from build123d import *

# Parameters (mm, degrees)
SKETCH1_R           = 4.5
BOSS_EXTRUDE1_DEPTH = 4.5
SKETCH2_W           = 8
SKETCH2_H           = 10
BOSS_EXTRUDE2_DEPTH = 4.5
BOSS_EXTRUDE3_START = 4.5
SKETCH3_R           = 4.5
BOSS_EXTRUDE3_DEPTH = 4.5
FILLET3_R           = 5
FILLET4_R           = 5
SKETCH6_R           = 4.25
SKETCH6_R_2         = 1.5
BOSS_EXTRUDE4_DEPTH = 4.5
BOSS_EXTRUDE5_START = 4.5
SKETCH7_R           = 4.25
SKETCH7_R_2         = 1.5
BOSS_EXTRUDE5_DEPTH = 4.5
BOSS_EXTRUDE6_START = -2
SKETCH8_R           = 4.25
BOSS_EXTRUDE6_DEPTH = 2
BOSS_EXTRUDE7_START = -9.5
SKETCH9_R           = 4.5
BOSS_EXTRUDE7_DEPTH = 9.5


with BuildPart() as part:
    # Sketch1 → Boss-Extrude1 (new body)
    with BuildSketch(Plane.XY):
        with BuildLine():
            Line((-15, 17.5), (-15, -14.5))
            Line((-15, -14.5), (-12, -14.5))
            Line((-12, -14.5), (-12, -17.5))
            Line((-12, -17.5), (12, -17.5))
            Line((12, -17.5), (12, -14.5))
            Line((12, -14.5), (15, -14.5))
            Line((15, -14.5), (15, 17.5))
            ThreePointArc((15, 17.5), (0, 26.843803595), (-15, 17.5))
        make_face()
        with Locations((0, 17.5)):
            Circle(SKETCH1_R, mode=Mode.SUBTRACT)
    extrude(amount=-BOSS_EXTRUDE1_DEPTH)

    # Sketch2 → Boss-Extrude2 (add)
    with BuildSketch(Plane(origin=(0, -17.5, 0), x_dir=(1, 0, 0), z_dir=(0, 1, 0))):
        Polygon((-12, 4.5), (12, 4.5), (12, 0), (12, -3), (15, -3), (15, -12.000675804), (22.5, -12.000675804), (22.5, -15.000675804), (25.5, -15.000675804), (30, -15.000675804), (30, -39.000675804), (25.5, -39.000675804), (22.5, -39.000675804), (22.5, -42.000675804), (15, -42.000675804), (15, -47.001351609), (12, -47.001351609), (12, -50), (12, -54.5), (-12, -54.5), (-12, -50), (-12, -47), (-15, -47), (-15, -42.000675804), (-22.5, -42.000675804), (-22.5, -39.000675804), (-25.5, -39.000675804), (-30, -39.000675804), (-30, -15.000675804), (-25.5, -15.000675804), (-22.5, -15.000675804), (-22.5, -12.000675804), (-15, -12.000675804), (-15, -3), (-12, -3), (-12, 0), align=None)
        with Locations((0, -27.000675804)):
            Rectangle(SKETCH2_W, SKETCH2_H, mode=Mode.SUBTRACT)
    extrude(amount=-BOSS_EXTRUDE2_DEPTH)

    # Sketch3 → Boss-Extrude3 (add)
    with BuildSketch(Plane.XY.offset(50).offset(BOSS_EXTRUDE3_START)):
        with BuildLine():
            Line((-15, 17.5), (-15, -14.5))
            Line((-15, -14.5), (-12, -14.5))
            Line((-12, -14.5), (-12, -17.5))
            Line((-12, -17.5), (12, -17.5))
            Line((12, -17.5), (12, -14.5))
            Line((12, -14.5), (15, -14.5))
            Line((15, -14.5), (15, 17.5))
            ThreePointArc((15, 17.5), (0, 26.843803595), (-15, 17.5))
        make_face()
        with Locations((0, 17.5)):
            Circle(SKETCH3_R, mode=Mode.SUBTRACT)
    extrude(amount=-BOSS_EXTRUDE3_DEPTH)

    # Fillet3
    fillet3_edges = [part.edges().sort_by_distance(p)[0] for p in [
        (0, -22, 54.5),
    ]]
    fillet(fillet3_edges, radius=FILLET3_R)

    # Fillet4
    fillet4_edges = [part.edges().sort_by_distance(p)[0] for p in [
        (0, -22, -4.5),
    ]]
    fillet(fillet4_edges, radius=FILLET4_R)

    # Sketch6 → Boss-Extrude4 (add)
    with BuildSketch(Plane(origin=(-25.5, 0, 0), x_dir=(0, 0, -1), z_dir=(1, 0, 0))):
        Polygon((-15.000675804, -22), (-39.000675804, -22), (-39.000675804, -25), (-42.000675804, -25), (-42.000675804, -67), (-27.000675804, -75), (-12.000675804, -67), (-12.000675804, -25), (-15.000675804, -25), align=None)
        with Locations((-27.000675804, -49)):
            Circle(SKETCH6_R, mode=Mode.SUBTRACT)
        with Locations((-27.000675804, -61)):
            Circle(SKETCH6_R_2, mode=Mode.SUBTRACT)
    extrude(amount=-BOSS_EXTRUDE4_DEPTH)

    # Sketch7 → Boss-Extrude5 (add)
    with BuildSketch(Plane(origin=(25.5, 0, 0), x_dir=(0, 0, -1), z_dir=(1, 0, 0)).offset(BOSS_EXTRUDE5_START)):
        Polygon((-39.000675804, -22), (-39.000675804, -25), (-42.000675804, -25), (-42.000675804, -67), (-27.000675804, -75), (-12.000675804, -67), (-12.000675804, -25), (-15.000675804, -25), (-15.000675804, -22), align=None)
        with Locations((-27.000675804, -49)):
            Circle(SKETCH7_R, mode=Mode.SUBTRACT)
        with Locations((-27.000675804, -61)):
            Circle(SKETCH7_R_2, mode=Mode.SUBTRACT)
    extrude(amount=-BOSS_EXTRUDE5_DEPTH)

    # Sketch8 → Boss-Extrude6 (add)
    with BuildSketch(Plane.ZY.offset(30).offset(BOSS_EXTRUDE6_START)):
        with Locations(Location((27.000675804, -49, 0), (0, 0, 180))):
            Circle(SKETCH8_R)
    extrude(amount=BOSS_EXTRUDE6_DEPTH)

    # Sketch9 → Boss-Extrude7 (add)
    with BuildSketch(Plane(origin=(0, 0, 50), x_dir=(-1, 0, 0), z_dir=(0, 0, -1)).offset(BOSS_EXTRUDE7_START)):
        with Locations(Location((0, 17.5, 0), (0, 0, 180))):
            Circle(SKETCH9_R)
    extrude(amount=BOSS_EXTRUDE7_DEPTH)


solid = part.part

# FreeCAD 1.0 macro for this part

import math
import FreeCAD as App
import Part
import Sketcher


def edges_at(feature, points):
    """Names of the edges that pass closest to the given points."""
    edges = feature.Shape.Edges
    near = lambda p: min(range(len(edges)), key=lambda i: edges[i].distToShape(Part.Vertex(*p))[0])
    return sorted({f"Edge{near(p) + 1}" for p in points})

doc = App.newDocument("Part")
body = doc.addObject("PartDesign::Body", "Body")

# Sketch on XY plane
sketch1 = body.newObject("Sketcher::SketchObject", "Sketch")
sketch1.AttachmentSupport = (doc.getObject("XY_Plane"), [""])
sketch1.MapMode = "FlatFace"
sketch1.addGeometry([
    Part.LineSegment(App.Vector(-15, 17.5, 0), App.Vector(-15, -14.5, 0)),  # 0
    Part.LineSegment(App.Vector(-15, -14.5, 0), App.Vector(-12, -14.5, 0)),  # 1
    Part.LineSegment(App.Vector(-12, -14.5, 0), App.Vector(-12, -17.5, 0)),  # 2
    Part.LineSegment(App.Vector(-12, -17.5, 0), App.Vector(12, -17.5, 0)),  # 3
    Part.LineSegment(App.Vector(12, -17.5, 0), App.Vector(12, -14.5, 0)),  # 4
    Part.LineSegment(App.Vector(12, -14.5, 0), App.Vector(15, -14.5, 0)),  # 5
    Part.LineSegment(App.Vector(15, -14.5, 0), App.Vector(15, 17.5, 0)),  # 6
    Part.ArcOfCircle(Part.Circle(App.Vector(0, 10.131837, 0), App.Vector(0, 0, 1), 16.711967), math.radians(26.160772), math.radians(153.839228)),  # 7
    Part.Circle(App.Vector(0, 17.5, 0), App.Vector(0, 0, 1), 4.5),  # 8
], False)
sketch1.addConstraint([
    Sketcher.Constraint("Coincident", 0, 2, 1, 1),
    Sketcher.Constraint("Coincident", 1, 2, 2, 1),
    Sketcher.Constraint("Coincident", 2, 2, 3, 1),
    Sketcher.Constraint("Coincident", 3, 2, 4, 1),
    Sketcher.Constraint("Coincident", 4, 2, 5, 1),
    Sketcher.Constraint("Coincident", 5, 2, 6, 1),
    Sketcher.Constraint("Coincident", 6, 2, 7, 1),
    Sketcher.Constraint("Coincident", 7, 2, 0, 1),
    Sketcher.Constraint("Vertical", 0),
    Sketcher.Constraint("Horizontal", 1),
    Sketcher.Constraint("Vertical", 2),
    Sketcher.Constraint("Horizontal", 3),
    Sketcher.Constraint("Vertical", 4),
    Sketcher.Constraint("Horizontal", 5),
    Sketcher.Constraint("Vertical", 6),
    Sketcher.Constraint("Symmetric", 1, 2, 4, 2, -2),
    Sketcher.Constraint("Symmetric", 6, 2, 7, 2, -2),
    Sketcher.Constraint("PointOnObject", 8, 3, -2),
    Sketcher.Constraint("Horizontal", 8, 3, 6, 2),
    Sketcher.Constraint("Equal", 5, 2),
    Sketcher.Constraint("Diameter", 8, 9.0),
    Sketcher.Constraint("DistanceX", 1, 1, 1, 2, 3.0),
    Sketcher.Constraint("DistanceX", 3, 1, 3, 2, 24.0),
    Sketcher.Constraint("DistanceY", 0, 2, 0, 1, 32.0),
    Sketcher.Constraint("DistanceY", -1, 1, 8, 3, 17.5),
    Sketcher.Constraint("Radius", 7, 16.711967),
])
pad1 = body.newObject("PartDesign::Pad", "Pad")
pad1.Profile = sketch1
pad1.Length = 4.5
pad1.Reversed = True

# Sketch on XZ plane
sketch2 = body.newObject("Sketcher::SketchObject", "Sketch001")
sketch2.AttachmentSupport = (doc.getObject("XZ_Plane"), [""])
sketch2.MapMode = "FlatFace"
sketch2.AttachmentOffset = App.Placement(App.Vector(0, 0, 17.5), App.Rotation())
sketch2.addGeometry([
    Part.LineSegment(App.Vector(12, -4.5, 0), App.Vector(-12, -4.5, 0)),  # 0
    Part.LineSegment(App.Vector(-12, -4.5, 0), App.Vector(-12, 3, 0)),  # 1
    Part.LineSegment(App.Vector(-12, 3, 0), App.Vector(-15, 3, 0)),  # 2
    Part.LineSegment(App.Vector(-15, 3, 0), App.Vector(-15, 12.000676, 0)),  # 3
    Part.LineSegment(App.Vector(-15, 12.000676, 0), App.Vector(-22.5, 12.000676, 0)),  # 4
    Part.LineSegment(App.Vector(-22.5, 12.000676, 0), App.Vector(-22.5, 15.000676, 0)),  # 5
    Part.LineSegment(App.Vector(-22.5, 15.000676, 0), App.Vector(-30, 15.000676, 0)),  # 6
    Part.LineSegment(App.Vector(-30, 15.000676, 0), App.Vector(-30, 39.000676, 0)),  # 7
    Part.LineSegment(App.Vector(-30, 39.000676, 0), App.Vector(-22.5, 39.000676, 0)),  # 8
    Part.LineSegment(App.Vector(-22.5, 39.000676, 0), App.Vector(-22.5, 42.000676, 0)),  # 9
    Part.LineSegment(App.Vector(-22.5, 42.000676, 0), App.Vector(-15, 42.000676, 0)),  # 10
    Part.LineSegment(App.Vector(-15, 42.000676, 0), App.Vector(-15, 47, 0)),  # 11
    Part.LineSegment(App.Vector(-15, 47, 0), App.Vector(-12, 47, 0)),  # 12
    Part.LineSegment(App.Vector(-12, 47, 0), App.Vector(-12, 54.5, 0)),  # 13
    Part.LineSegment(App.Vector(-12, 54.5, 0), App.Vector(12, 54.5, 0)),  # 14
    Part.LineSegment(App.Vector(12, 54.5, 0), App.Vector(12, 47.001352, 0)),  # 15
    Part.LineSegment(App.Vector(12, 47.001352, 0), App.Vector(15, 47.001352, 0)),  # 16
    Part.LineSegment(App.Vector(15, 47.001352, 0), App.Vector(15, 42.000676, 0)),  # 17
    Part.LineSegment(App.Vector(15, 42.000676, 0), App.Vector(22.5, 42.000676, 0)),  # 18
    Part.LineSegment(App.Vector(22.5, 42.000676, 0), App.Vector(22.5, 39.000676, 0)),  # 19
    Part.LineSegment(App.Vector(22.5, 39.000676, 0), App.Vector(30, 39.000676, 0)),  # 20
    Part.LineSegment(App.Vector(30, 39.000676, 0), App.Vector(30, 15.000676, 0)),  # 21
    Part.LineSegment(App.Vector(30, 15.000676, 0), App.Vector(22.5, 15.000676, 0)),  # 22
    Part.LineSegment(App.Vector(22.5, 15.000676, 0), App.Vector(22.5, 12.000676, 0)),  # 23
    Part.LineSegment(App.Vector(22.5, 12.000676, 0), App.Vector(15, 12.000676, 0)),  # 24
    Part.LineSegment(App.Vector(15, 12.000676, 0), App.Vector(15, 3, 0)),  # 25
    Part.LineSegment(App.Vector(15, 3, 0), App.Vector(12, 3, 0)),  # 26
    Part.LineSegment(App.Vector(12, 3, 0), App.Vector(12, -4.5, 0)),  # 27
    Part.LineSegment(App.Vector(-4, 32.000676, 0), App.Vector(-4, 22.000676, 0)),  # 28
    Part.LineSegment(App.Vector(-4, 22.000676, 0), App.Vector(4, 22.000676, 0)),  # 29
    Part.LineSegment(App.Vector(4, 22.000676, 0), App.Vector(4, 32.000676, 0)),  # 30
    Part.LineSegment(App.Vector(4, 32.000676, 0), App.Vector(-4, 32.000676, 0)),  # 31
], False)
sketch2.addConstraint([
    Sketcher.Constraint("Coincident", 0, 2, 1, 1),
    Sketcher.Constraint("Coincident", 1, 2, 2, 1),
    Sketcher.Constraint("Coincident", 2, 2, 3, 1),
    Sketcher.Constraint("Coincident", 3, 2, 4, 1),
    Sketcher.Constraint("Coincident", 4, 2, 5, 1),
    Sketcher.Constraint("Coincident", 5, 2, 6, 1),
    Sketcher.Constraint("Coincident", 6, 2, 7, 1),
    Sketcher.Constraint("Coincident", 7, 2, 8, 1),
    Sketcher.Constraint("Coincident", 8, 2, 9, 1),
    Sketcher.Constraint("Coincident", 9, 2, 10, 1),
    Sketcher.Constraint("Coincident", 10, 2, 11, 1),
    Sketcher.Constraint("Coincident", 11, 2, 12, 1),
    Sketcher.Constraint("Coincident", 12, 2, 13, 1),
    Sketcher.Constraint("Coincident", 13, 2, 14, 1),
    Sketcher.Constraint("Coincident", 14, 2, 15, 1),
    Sketcher.Constraint("Coincident", 15, 2, 16, 1),
    Sketcher.Constraint("Coincident", 16, 2, 17, 1),
    Sketcher.Constraint("Coincident", 17, 2, 18, 1),
    Sketcher.Constraint("Coincident", 18, 2, 19, 1),
    Sketcher.Constraint("Coincident", 19, 2, 20, 1),
    Sketcher.Constraint("Coincident", 20, 2, 21, 1),
    Sketcher.Constraint("Coincident", 21, 2, 22, 1),
    Sketcher.Constraint("Coincident", 22, 2, 23, 1),
    Sketcher.Constraint("Coincident", 23, 2, 24, 1),
    Sketcher.Constraint("Coincident", 24, 2, 25, 1),
    Sketcher.Constraint("Coincident", 25, 2, 26, 1),
    Sketcher.Constraint("Coincident", 26, 2, 27, 1),
    Sketcher.Constraint("Coincident", 27, 2, 0, 1),
    Sketcher.Constraint("Coincident", 28, 2, 29, 1),
    Sketcher.Constraint("Coincident", 29, 2, 30, 1),
    Sketcher.Constraint("Coincident", 30, 2, 31, 1),
    Sketcher.Constraint("Coincident", 31, 2, 28, 1),
    Sketcher.Constraint("Horizontal", 0),
    Sketcher.Constraint("Vertical", 1),
    Sketcher.Constraint("Horizontal", 2),
    Sketcher.Constraint("Vertical", 3),
    Sketcher.Constraint("Horizontal", 4),
    Sketcher.Constraint("Vertical", 5),
    Sketcher.Constraint("Horizontal", 6),
    Sketcher.Constraint("Vertical", 7),
    Sketcher.Constraint("Horizontal", 8),
    Sketcher.Constraint("Vertical", 9),
    Sketcher.Constraint("Horizontal", 10),
    Sketcher.Constraint("Vertical", 11),
    Sketcher.Constraint("Horizontal", 12),
    Sketcher.Constraint("Vertical", 13),
    Sketcher.Constraint("Horizontal", 14),
    Sketcher.Constraint("Vertical", 15),
    Sketcher.Constraint("Horizontal", 16),
    Sketcher.Constraint("Vertical", 17),
    Sketcher.Constraint("Horizontal", 18),
    Sketcher.Constraint("Vertical", 19),
    Sketcher.Constraint("Horizontal", 20),
    Sketcher.Constraint("Vertical", 21),
    Sketcher.Constraint("Horizontal", 22),
    Sketcher.Constraint("Vertical", 23),
    Sketcher.Constraint("Horizontal", 24),
    Sketcher.Constraint("Vertical", 25),
    Sketcher.Constraint("Horizontal", 26),
    Sketcher.Constraint("Vertical", 27),
    Sketcher.Constraint("Vertical", 28),
    Sketcher.Constraint("Horizontal", 29),
    Sketcher.Constraint("Vertical", 30),
    Sketcher.Constraint("Horizontal", 31),
    Sketcher.Constraint("Symmetric", 10, 2, 17, 2, -2),
    Sketcher.Constraint("Symmetric", 8, 2, 19, 2, -2),
    Sketcher.Constraint("Symmetric", 6, 2, 21, 2, -2),
    Sketcher.Constraint("Symmetric", 4, 2, 23, 2, -2),
    Sketcher.Constraint("Symmetric", 2, 2, 25, 2, -2),
    Sketcher.Constraint("Vertical", 5, 2, 8, 2),
    Sketcher.Constraint("Vertical", 3, 2, 10, 2),
    Sketcher.Constraint("Vertical", 1, 2, 12, 2),
    Sketcher.Constraint("Vertical", 15, 2, 26, 2),
    Sketcher.Constraint("Equal", 4, 6),
    Sketcher.Constraint("Equal", 12, 16),
    Sketcher.Constraint("Equal", 24, 1),
    Sketcher.Constraint("Equal", 26, 5),
    Sketcher.Constraint("Equal", 14, 7),
    Sketcher.Constraint("Equal", 5, 9),
    Sketcher.Constraint("Equal", 1, 13),
    Sketcher.Constraint("DistanceX", 0, 2, 0, 1, 24.0),
    Sketcher.Constraint("DistanceX", 2, 2, 2, 1, 3.0),
    Sketcher.Constraint("DistanceX", 29, 1, 29, 2, 8.0),
    Sketcher.Constraint("DistanceY", 28, 2, 28, 1, 10.0),
    Sketcher.Constraint("DistanceX", 4, 2, 4, 1, 7.5),
    Sketcher.Constraint("DistanceY", -1, 1, 1, 2, 3.0),
    Sketcher.Constraint("DistanceY", -1, 1, 11, 2, 47.0),
    Sketcher.Constraint("DistanceX", 28, 2, -1, 1, 4.0),
    Sketcher.Constraint("DistanceY", 3, 2, 28, 2, 10.0),
    Sketcher.Constraint("DistanceY", 15, 2, 15, 1, 7.498648),
    Sketcher.Constraint("DistanceY", 3, 1, 3, 2, 9.000676),
])
pad2 = body.newObject("PartDesign::Pad", "Pad001")
pad2.Profile = sketch2
pad2.Length = 4.5

# Sketch on XY plane
sketch3 = body.newObject("Sketcher::SketchObject", "Sketch002")
sketch3.AttachmentSupport = (doc.getObject("XY_Plane"), [""])
sketch3.MapMode = "FlatFace"
sketch3.AttachmentOffset = App.Placement(App.Vector(0, 0, 54.5), App.Rotation())
sketch3.addGeometry([
    Part.LineSegment(App.Vector(-15, 17.5, 0), App.Vector(-15, -14.5, 0)),  # 0
    Part.LineSegment(App.Vector(-15, -14.5, 0), App.Vector(-12, -14.5, 0)),  # 1
    Part.LineSegment(App.Vector(-12, -14.5, 0), App.Vector(-12, -17.5, 0)),  # 2
    Part.LineSegment(App.Vector(-12, -17.5, 0), App.Vector(12, -17.5, 0)),  # 3
    Part.LineSegment(App.Vector(12, -17.5, 0), App.Vector(12, -14.5, 0)),  # 4
    Part.LineSegment(App.Vector(12, -14.5, 0), App.Vector(15, -14.5, 0)),  # 5
    Part.LineSegment(App.Vector(15, -14.5, 0), App.Vector(15, 17.5, 0)),  # 6
    Part.ArcOfCircle(Part.Circle(App.Vector(0, 10.131837, 0), App.Vector(0, 0, 1), 16.711967), math.radians(26.160772), math.radians(153.839228)),  # 7
    Part.Circle(App.Vector(0, 17.5, 0), App.Vector(0, 0, 1), 4.5),  # 8
], False)
sketch3.addConstraint([
    Sketcher.Constraint("Coincident", 0, 2, 1, 1),
    Sketcher.Constraint("Coincident", 1, 2, 2, 1),
    Sketcher.Constraint("Coincident", 2, 2, 3, 1),
    Sketcher.Constraint("Coincident", 3, 2, 4, 1),
    Sketcher.Constraint("Coincident", 4, 2, 5, 1),
    Sketcher.Constraint("Coincident", 5, 2, 6, 1),
    Sketcher.Constraint("Coincident", 6, 2, 7, 1),
    Sketcher.Constraint("Coincident", 7, 2, 0, 1),
    Sketcher.Constraint("Vertical", 0),
    Sketcher.Constraint("Horizontal", 1),
    Sketcher.Constraint("Vertical", 2),
    Sketcher.Constraint("Horizontal", 3),
    Sketcher.Constraint("Vertical", 4),
    Sketcher.Constraint("Horizontal", 5),
    Sketcher.Constraint("Vertical", 6),
    Sketcher.Constraint("Symmetric", 1, 2, 4, 2, -2),
    Sketcher.Constraint("Symmetric", 6, 2, 7, 2, -2),
    Sketcher.Constraint("PointOnObject", 8, 3, -2),
    Sketcher.Constraint("Horizontal", 8, 3, 6, 2),
    Sketcher.Constraint("Equal", 5, 2),
    Sketcher.Constraint("Diameter", 8, 9.0),
    Sketcher.Constraint("DistanceX", 1, 1, 1, 2, 3.0),
    Sketcher.Constraint("DistanceX", 3, 1, 3, 2, 24.0),
    Sketcher.Constraint("DistanceY", 0, 2, 0, 1, 32.0),
    Sketcher.Constraint("DistanceY", -1, 1, 8, 3, 17.5),
    Sketcher.Constraint("Radius", 7, 16.711967),
])
pad3 = body.newObject("PartDesign::Pad", "Pad002")
pad3.Profile = sketch3
pad3.Length = 4.5
pad3.Reversed = True
doc.recompute()

fillet = body.newObject("PartDesign::Fillet", "Fillet")
fillet.Base = (pad3, edges_at(pad3, [(0, -22, 54.5)]))
fillet.Radius = 5
doc.recompute()

fillet2 = body.newObject("PartDesign::Fillet", "Fillet001")
fillet2.Base = (fillet, edges_at(fillet, [(0, -22, -4.5)]))
fillet2.Radius = 5

# Sketch on YZ plane
sketch4 = body.newObject("Sketcher::SketchObject", "Sketch003")
sketch4.AttachmentSupport = (doc.getObject("YZ_Plane"), [""])
sketch4.MapMode = "FlatFace"
sketch4.AttachmentOffset = App.Placement(App.Vector(0, 0, -25.5), App.Rotation())
sketch4.addGeometry([
    Part.LineSegment(App.Vector(-22, 15.000676, 0), App.Vector(-22, 39.000676, 0)),  # 0
    Part.LineSegment(App.Vector(-22, 39.000676, 0), App.Vector(-25, 39.000676, 0)),  # 1
    Part.LineSegment(App.Vector(-25, 39.000676, 0), App.Vector(-25, 42.000676, 0)),  # 2
    Part.LineSegment(App.Vector(-25, 42.000676, 0), App.Vector(-67, 42.000676, 0)),  # 3
    Part.LineSegment(App.Vector(-67, 42.000676, 0), App.Vector(-75, 27.000676, 0)),  # 4
    Part.LineSegment(App.Vector(-75, 27.000676, 0), App.Vector(-67, 12.000676, 0)),  # 5
    Part.LineSegment(App.Vector(-67, 12.000676, 0), App.Vector(-25, 12.000676, 0)),  # 6
    Part.LineSegment(App.Vector(-25, 12.000676, 0), App.Vector(-25, 15.000676, 0)),  # 7
    Part.LineSegment(App.Vector(-25, 15.000676, 0), App.Vector(-22, 15.000676, 0)),  # 8
    Part.Circle(App.Vector(-61, 27.000676, 0), App.Vector(0, 0, 1), 1.5),  # 9
    Part.Circle(App.Vector(-49, 27.000676, 0), App.Vector(0, 0, 1), 4.25),  # 10
], False)
sketch4.addConstraint([
    Sketcher.Constraint("Coincident", 0, 2, 1, 1),
    Sketcher.Constraint("Coincident", 1, 2, 2, 1),
    Sketcher.Constraint("Coincident", 2, 2, 3, 1),
    Sketcher.Constraint("Coincident", 3, 2, 4, 1),
    Sketcher.Constraint("Coincident", 4, 2, 5, 1),
    Sketcher.Constraint("Coincident", 5, 2, 6, 1),
    Sketcher.Constraint("Coincident", 6, 2, 7, 1),
    Sketcher.Constraint("Coincident", 7, 2, 8, 1),
    Sketcher.Constraint("Coincident", 8, 2, 0, 1),
    Sketcher.Constraint("Vertical", 0),
    Sketcher.Constraint("Horizontal", 1),
    Sketcher.Constraint("Vertical", 2),
    Sketcher.Constraint("Horizontal", 3),
    Sketcher.Constraint("Horizontal", 6),
    Sketcher.Constraint("Vertical", 7),
    Sketcher.Constraint("Horizontal", 8),
    Sketcher.Constraint("Horizontal", 9, 3, 10, 3),
    Sketcher.Constraint("Horizontal", 10, 3, 4, 2),
    Sketcher.Constraint("Vertical", 3, 2, 5, 2),
    Sketcher.Constraint("Vertical", 2, 2, 6, 2),
    Sketcher.Constraint("Equal", 8, 2),
    Sketcher.Constraint("Equal", 2, 7),
    Sketcher.Constraint("Equal", 4, 5),
    Sketcher.Constraint("Diameter", 9, 3.0),
    Sketcher.Constraint("Diameter", 10, 8.5),
    Sketcher.Constraint("DistanceX", 1, 2, 1, 1, 3.0),
    Sketcher.Constraint("DistanceX", 3, 2, 3, 1, 42.0),
    Sketcher.Constraint("DistanceY", 0, 1, 0, 2, 24.0),
    Sketcher.Constraint("Distance", 4, 17.0),
    Sketcher.Constraint("DistanceX", 9, 3, -1, 1, 61.0),
    Sketcher.Constraint("DistanceX", 10, 3, -1, 1, 49.0),
    Sketcher.Constraint("DistanceX", 0, 2, -1, 1, 22.0),
    Sketcher.Constraint("DistanceY", -1, 1, 9, 3, 27.000676),
])
pad4 = body.newObject("PartDesign::Pad", "Pad003")
pad4.Profile = sketch4
pad4.Length = 4.5
pad4.Reversed = True

# Sketch on YZ plane
sketch5 = body.newObject("Sketcher::SketchObject", "Sketch004")
sketch5.AttachmentSupport = (doc.getObject("YZ_Plane"), [""])
sketch5.MapMode = "FlatFace"
sketch5.AttachmentOffset = App.Placement(App.Vector(0, 0, 30), App.Rotation())
sketch5.addGeometry([
    Part.LineSegment(App.Vector(-22, 39.000676, 0), App.Vector(-25, 39.000676, 0)),  # 0
    Part.LineSegment(App.Vector(-25, 39.000676, 0), App.Vector(-25, 42.000676, 0)),  # 1
    Part.LineSegment(App.Vector(-25, 42.000676, 0), App.Vector(-67, 42.000676, 0)),  # 2
    Part.LineSegment(App.Vector(-67, 42.000676, 0), App.Vector(-75, 27.000676, 0)),  # 3
    Part.LineSegment(App.Vector(-75, 27.000676, 0), App.Vector(-67, 12.000676, 0)),  # 4
    Part.LineSegment(App.Vector(-67, 12.000676, 0), App.Vector(-25, 12.000676, 0)),  # 5
    Part.LineSegment(App.Vector(-25, 12.000676, 0), App.Vector(-25, 15.000676, 0)),  # 6
    Part.LineSegment(App.Vector(-25, 15.000676, 0), App.Vector(-22, 15.000676, 0)),  # 7
    Part.LineSegment(App.Vector(-22, 15.000676, 0), App.Vector(-22, 39.000676, 0)),  # 8
    Part.Circle(App.Vector(-61, 27.000676, 0), App.Vector(0, 0, 1), 1.5),  # 9
    Part.Circle(App.Vector(-49, 27.000676, 0), App.Vector(0, 0, 1), 4.25),  # 10
], False)
sketch5.addConstraint([
    Sketcher.Constraint("Coincident", 0, 2, 1, 1),
    Sketcher.Constraint("Coincident", 1, 2, 2, 1),
    Sketcher.Constraint("Coincident", 2, 2, 3, 1),
    Sketcher.Constraint("Coincident", 3, 2, 4, 1),
    Sketcher.Constraint("Coincident", 4, 2, 5, 1),
    Sketcher.Constraint("Coincident", 5, 2, 6, 1),
    Sketcher.Constraint("Coincident", 6, 2, 7, 1),
    Sketcher.Constraint("Coincident", 7, 2, 8, 1),
    Sketcher.Constraint("Coincident", 8, 2, 0, 1),
    Sketcher.Constraint("Horizontal", 0),
    Sketcher.Constraint("Vertical", 1),
    Sketcher.Constraint("Horizontal", 2),
    Sketcher.Constraint("Horizontal", 5),
    Sketcher.Constraint("Vertical", 6),
    Sketcher.Constraint("Horizontal", 7),
    Sketcher.Constraint("Vertical", 8),
    Sketcher.Constraint("Horizontal", 9, 3, 10, 3),
    Sketcher.Constraint("Horizontal", 10, 3, 3, 2),
    Sketcher.Constraint("Vertical", 2, 2, 4, 2),
    Sketcher.Constraint("Vertical", 1, 2, 5, 2),
    Sketcher.Constraint("Equal", 7, 1),
    Sketcher.Constraint("Equal", 1, 6),
    Sketcher.Constraint("Equal", 3, 4),
    Sketcher.Constraint("Diameter", 9, 3.0),
    Sketcher.Constraint("Diameter", 10, 8.5),
    Sketcher.Constraint("DistanceX", 0, 2, 0, 1, 3.0),
    Sketcher.Constraint("DistanceX", 2, 2, 2, 1, 42.0),
    Sketcher.Constraint("DistanceY", 8, 1, 8, 2, 24.0),
    Sketcher.Constraint("Distance", 3, 17.0),
    Sketcher.Constraint("DistanceX", 9, 3, -1, 1, 61.0),
    Sketcher.Constraint("DistanceX", 10, 3, -1, 1, 49.0),
    Sketcher.Constraint("DistanceX", 0, 2, -1, 1, 25.0),
    Sketcher.Constraint("DistanceY", -1, 1, 9, 3, 27.000676),
])
pad5 = body.newObject("PartDesign::Pad", "Pad004")
pad5.Profile = sketch5
pad5.Length = 4.5
pad5.Reversed = True

# Sketch on YZ plane
sketch6 = body.newObject("Sketcher::SketchObject", "Sketch005")
sketch6.AttachmentSupport = (doc.getObject("YZ_Plane"), [""])
sketch6.MapMode = "FlatFace"
sketch6.AttachmentOffset = App.Placement(App.Vector(0, 0, -28), App.Rotation())
sketch6.addGeometry(Part.Circle(App.Vector(-49, 27.000676, 0), App.Vector(0, 0, 1), 4.25), False)
sketch6.addConstraint([
    Sketcher.Constraint("Diameter", 0, 8.5),
    Sketcher.Constraint("DistanceX", 0, 3, -1, 1, 49.0),
    Sketcher.Constraint("DistanceY", -1, 1, 0, 3, 27.000676),
])
pad6 = body.newObject("PartDesign::Pad", "Pad005")
pad6.Profile = sketch6
pad6.Length = 2
pad6.Reversed = True

# Sketch on XY plane
sketch7 = body.newObject("Sketcher::SketchObject", "Sketch006")
sketch7.AttachmentSupport = (doc.getObject("XY_Plane"), [""])
sketch7.MapMode = "FlatFace"
sketch7.AttachmentOffset = App.Placement(App.Vector(0, 0, 59.5), App.Rotation())
sketch7.addGeometry(Part.Circle(App.Vector(0, 17.5, 0), App.Vector(0, 0, 1), 4.5), False)
sketch7.addConstraint([
    Sketcher.Constraint("PointOnObject", 0, 3, -2),
    Sketcher.Constraint("Diameter", 0, 9.0),
    Sketcher.Constraint("DistanceY", -1, 1, 0, 3, 17.5),
])
pad7 = body.newObject("PartDesign::Pad", "Pad006")
pad7.Profile = sketch7
pad7.Length = 9.5
pad7.Reversed = True

doc.recompute()
